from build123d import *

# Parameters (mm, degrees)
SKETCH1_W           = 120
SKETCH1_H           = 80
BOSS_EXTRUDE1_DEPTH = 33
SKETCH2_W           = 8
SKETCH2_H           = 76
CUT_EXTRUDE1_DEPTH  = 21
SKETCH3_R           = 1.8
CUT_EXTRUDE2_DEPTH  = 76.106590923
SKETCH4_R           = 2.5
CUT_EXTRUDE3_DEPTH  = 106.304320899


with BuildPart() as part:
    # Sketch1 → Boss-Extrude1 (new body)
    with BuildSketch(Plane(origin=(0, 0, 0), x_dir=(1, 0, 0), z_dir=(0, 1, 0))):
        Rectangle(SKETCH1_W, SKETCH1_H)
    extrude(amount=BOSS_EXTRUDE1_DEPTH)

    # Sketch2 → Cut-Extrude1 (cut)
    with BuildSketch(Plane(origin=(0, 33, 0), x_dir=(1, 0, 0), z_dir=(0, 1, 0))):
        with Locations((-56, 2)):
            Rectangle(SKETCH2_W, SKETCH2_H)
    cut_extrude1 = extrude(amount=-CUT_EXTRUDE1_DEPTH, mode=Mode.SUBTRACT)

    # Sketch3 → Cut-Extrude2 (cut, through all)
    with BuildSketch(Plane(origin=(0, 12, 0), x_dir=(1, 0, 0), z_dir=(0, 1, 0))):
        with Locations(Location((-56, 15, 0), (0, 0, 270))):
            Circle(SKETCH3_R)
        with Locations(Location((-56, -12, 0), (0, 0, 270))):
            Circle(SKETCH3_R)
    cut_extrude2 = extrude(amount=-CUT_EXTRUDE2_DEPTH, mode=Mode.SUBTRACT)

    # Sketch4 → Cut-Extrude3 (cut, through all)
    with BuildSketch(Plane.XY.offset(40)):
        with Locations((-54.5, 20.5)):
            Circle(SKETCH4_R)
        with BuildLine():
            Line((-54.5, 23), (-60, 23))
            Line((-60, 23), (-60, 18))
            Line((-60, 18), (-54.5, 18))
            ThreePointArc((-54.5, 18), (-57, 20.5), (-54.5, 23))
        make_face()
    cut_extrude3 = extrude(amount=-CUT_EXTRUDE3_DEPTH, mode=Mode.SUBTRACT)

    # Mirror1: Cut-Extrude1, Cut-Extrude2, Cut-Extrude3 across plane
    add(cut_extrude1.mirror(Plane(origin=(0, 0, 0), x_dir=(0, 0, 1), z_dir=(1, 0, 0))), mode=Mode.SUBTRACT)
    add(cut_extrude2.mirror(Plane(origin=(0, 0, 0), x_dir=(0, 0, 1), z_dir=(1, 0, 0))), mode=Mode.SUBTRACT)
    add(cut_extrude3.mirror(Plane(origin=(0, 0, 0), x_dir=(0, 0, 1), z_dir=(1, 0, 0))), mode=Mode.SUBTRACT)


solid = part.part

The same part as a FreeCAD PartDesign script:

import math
import FreeCAD as App
import Part
import Sketcher

doc = App.newDocument("Part")
body = doc.addObject("PartDesign::Body", "Body")

sketch1 = body.newObject("Sketcher::SketchObject", "Sketch")
sketch1.AttachmentSupport = (doc.getObject("XZ_Plane"), [""])
sketch1.MapMode = "FlatFace"
sketch1.addGeometry([
    Part.LineSegment(App.Vector(-60, -40, 0), App.Vector(-60, 40, 0)),
    Part.LineSegment(App.Vector(-60, 40, 0), App.Vector(60, 40, 0)),
    Part.LineSegment(App.Vector(60, 40, 0), App.Vector(60, -40, 0)),
    Part.LineSegment(App.Vector(60, -40, 0), App.Vector(-60, -40, 0)),
], False)
sketch1.addConstraint([
    Sketcher.Constraint("Coincident", 0, 2, 1, 1),
    Sketcher.Constraint("Coincident", 1, 2, 2, 1),
    Sketcher.Constraint("Coincident", 2, 2, 3, 1),
    Sketcher.Constraint("Coincident", 3, 2, 0, 1),
    Sketcher.Constraint("Vertical", 0),
    Sketcher.Constraint("Horizontal", 1),
    Sketcher.Constraint("Vertical", 2),
    Sketcher.Constraint("Horizontal", 3),
    Sketcher.Constraint("Symmetric", 0, 2, 2, 2, -1, 1),
    Sketcher.Constraint("DistanceX", 1, 1, 1, 2, 120.0),
    Sketcher.Constraint("DistanceY", 0, 1, 0, 2, 80.0),
])
pad1 = body.newObject("PartDesign::Pad", "Pad")
pad1.Profile = sketch1
pad1.Length = 33
pad1.Reversed = True

sketch2 = body.newObject("Sketcher::SketchObject", "Sketch001")
sketch2.AttachmentSupport = (doc.getObject("XZ_Plane"), [""])
sketch2.MapMode = "FlatFace"
sketch2.AttachmentOffset = App.Placement(App.Vector(0, 0, -33), App.Rotation())
sketch2.addGeometry([
    Part.LineSegment(App.Vector(-60, -40, 0), App.Vector(-60, 36, 0)),
    Part.LineSegment(App.Vector(-60, 36, 0), App.Vector(-52, 36, 0)),
    Part.LineSegment(App.Vector(-52, 36, 0), App.Vector(-52, -40, 0)),
    Part.LineSegment(App.Vector(-52, -40, 0), App.Vector(-60, -40, 0)),
], False)
sketch2.addConstraint([
    Sketcher.Constraint("Coincident", 0, 2, 1, 1),
    Sketcher.Constraint("Coincident", 1, 2, 2, 1),
    Sketcher.Constraint("Coincident", 2, 2, 3, 1),
    Sketcher.Constraint("Coincident", 3, 2, 0, 1),
    Sketcher.Constraint("Vertical", 0),
    Sketcher.Constraint("Horizontal", 1),
    Sketcher.Constraint("Vertical", 2),
    Sketcher.Constraint("Horizontal", 3),
    Sketcher.Constraint("DistanceX", 1, 1, 1, 2, 8.0),
    Sketcher.Constraint("DistanceY", 0, 1, 0, 2, 76.0),
    Sketcher.Constraint("DistanceX", 0, 2, -1, 1, 60.0),
    Sketcher.Constraint("DistanceY", -1, 1, 0, 2, 36.0),
])
pocket1 = body.newObject("PartDesign::Pocket", "Pocket")
pocket1.Profile = sketch2
pocket1.Length = 21
pocket1.Reversed = True

sketch3 = body.newObject("Sketcher::SketchObject", "Sketch002")
sketch3.AttachmentSupport = (doc.getObject("XZ_Plane"), [""])
sketch3.MapMode = "FlatFace"
sketch3.AttachmentOffset = App.Placement(App.Vector(0, 0, -12), App.Rotation())
sketch3.addGeometry([
    Part.Circle(App.Vector(-56, -15, 0), App.Vector(0, 0, 1), 1.8),
    Part.Circle(App.Vector(-56, 12, 0), App.Vector(0, 0, 1), 1.8),
], False)
sketch3.addConstraint([
    Sketcher.Constraint("Equal", 0, 1),
    Sketcher.Constraint("Vertical", 0, 3, 1, 3),
    Sketcher.Constraint("Diameter", 0, 3.6),
    Sketcher.Constraint("DistanceX", 0, 3, -1, 1, 56.0),
    Sketcher.Constraint("DistanceY", 0, 3, -1, 1, 15.0),
    Sketcher.Constraint("DistanceY", -1, 1, 1, 3, 12.0),
])
pocket2 = body.newObject("PartDesign::Pocket", "Pocket001")
pocket2.Profile = sketch3
pocket2.Type = "ThroughAll"
pocket2.Reversed = True

sketch4 = body.newObject("Sketcher::SketchObject", "Sketch003")
sketch4.AttachmentSupport = (doc.getObject("XY_Plane"), [""])
sketch4.MapMode = "FlatFace"
sketch4.AttachmentOffset = App.Placement(App.Vector(0, 0, 40), App.Rotation())
sketch4.addGeometry([
    Part.LineSegment(App.Vector(-54.5, 23, 0), App.Vector(-60, 23, 0)),
    Part.LineSegment(App.Vector(-60, 23, 0), App.Vector(-60, 18, 0)),
    Part.LineSegment(App.Vector(-60, 18, 0), App.Vector(-54.5, 18, 0)),
    Part.ArcOfCircle(Part.Circle(App.Vector(-54.5, 20.5, 0), App.Vector(0, 0, 1), 2.5), math.radians(-90), math.radians(90)),
], False)
sketch4.addConstraint([
    Sketcher.Constraint("Coincident", 0, 2, 1, 1),
    Sketcher.Constraint("Coincident", 1, 2, 2, 1),
    Sketcher.Constraint("Tangent", 2, 2, 3, 1),
    Sketcher.Constraint("Tangent", 3, 2, 0, 1),
    Sketcher.Constraint("Horizontal", 0),
    Sketcher.Constraint("Vertical", 1),
    Sketcher.Constraint("Horizontal", 2),
    Sketcher.Constraint("Radius", 3, 2.5),
    Sketcher.Constraint("DistanceX", 0, 2, 0, 1, 5.5),
    Sketcher.Constraint("DistanceX", 0, 2, -1, 1, 60.0),
    Sketcher.Constraint("DistanceY", -1, 1, 0, 2, 23.0),
])
pocket3 = body.newObject("PartDesign::Pocket", "Pocket002")
pocket3.Profile = sketch4
pocket3.Type = "ThroughAll"
doc.recompute()

mirrored = body.newObject("PartDesign::Mirrored", "Mirrored")
mirrored.Originals = [pocket1, pocket2, pocket3]
mirrored.MirrorPlane = (doc.getObject("YZ_Plane"), [""])
body.Tip = mirrored

doc.recompute()
